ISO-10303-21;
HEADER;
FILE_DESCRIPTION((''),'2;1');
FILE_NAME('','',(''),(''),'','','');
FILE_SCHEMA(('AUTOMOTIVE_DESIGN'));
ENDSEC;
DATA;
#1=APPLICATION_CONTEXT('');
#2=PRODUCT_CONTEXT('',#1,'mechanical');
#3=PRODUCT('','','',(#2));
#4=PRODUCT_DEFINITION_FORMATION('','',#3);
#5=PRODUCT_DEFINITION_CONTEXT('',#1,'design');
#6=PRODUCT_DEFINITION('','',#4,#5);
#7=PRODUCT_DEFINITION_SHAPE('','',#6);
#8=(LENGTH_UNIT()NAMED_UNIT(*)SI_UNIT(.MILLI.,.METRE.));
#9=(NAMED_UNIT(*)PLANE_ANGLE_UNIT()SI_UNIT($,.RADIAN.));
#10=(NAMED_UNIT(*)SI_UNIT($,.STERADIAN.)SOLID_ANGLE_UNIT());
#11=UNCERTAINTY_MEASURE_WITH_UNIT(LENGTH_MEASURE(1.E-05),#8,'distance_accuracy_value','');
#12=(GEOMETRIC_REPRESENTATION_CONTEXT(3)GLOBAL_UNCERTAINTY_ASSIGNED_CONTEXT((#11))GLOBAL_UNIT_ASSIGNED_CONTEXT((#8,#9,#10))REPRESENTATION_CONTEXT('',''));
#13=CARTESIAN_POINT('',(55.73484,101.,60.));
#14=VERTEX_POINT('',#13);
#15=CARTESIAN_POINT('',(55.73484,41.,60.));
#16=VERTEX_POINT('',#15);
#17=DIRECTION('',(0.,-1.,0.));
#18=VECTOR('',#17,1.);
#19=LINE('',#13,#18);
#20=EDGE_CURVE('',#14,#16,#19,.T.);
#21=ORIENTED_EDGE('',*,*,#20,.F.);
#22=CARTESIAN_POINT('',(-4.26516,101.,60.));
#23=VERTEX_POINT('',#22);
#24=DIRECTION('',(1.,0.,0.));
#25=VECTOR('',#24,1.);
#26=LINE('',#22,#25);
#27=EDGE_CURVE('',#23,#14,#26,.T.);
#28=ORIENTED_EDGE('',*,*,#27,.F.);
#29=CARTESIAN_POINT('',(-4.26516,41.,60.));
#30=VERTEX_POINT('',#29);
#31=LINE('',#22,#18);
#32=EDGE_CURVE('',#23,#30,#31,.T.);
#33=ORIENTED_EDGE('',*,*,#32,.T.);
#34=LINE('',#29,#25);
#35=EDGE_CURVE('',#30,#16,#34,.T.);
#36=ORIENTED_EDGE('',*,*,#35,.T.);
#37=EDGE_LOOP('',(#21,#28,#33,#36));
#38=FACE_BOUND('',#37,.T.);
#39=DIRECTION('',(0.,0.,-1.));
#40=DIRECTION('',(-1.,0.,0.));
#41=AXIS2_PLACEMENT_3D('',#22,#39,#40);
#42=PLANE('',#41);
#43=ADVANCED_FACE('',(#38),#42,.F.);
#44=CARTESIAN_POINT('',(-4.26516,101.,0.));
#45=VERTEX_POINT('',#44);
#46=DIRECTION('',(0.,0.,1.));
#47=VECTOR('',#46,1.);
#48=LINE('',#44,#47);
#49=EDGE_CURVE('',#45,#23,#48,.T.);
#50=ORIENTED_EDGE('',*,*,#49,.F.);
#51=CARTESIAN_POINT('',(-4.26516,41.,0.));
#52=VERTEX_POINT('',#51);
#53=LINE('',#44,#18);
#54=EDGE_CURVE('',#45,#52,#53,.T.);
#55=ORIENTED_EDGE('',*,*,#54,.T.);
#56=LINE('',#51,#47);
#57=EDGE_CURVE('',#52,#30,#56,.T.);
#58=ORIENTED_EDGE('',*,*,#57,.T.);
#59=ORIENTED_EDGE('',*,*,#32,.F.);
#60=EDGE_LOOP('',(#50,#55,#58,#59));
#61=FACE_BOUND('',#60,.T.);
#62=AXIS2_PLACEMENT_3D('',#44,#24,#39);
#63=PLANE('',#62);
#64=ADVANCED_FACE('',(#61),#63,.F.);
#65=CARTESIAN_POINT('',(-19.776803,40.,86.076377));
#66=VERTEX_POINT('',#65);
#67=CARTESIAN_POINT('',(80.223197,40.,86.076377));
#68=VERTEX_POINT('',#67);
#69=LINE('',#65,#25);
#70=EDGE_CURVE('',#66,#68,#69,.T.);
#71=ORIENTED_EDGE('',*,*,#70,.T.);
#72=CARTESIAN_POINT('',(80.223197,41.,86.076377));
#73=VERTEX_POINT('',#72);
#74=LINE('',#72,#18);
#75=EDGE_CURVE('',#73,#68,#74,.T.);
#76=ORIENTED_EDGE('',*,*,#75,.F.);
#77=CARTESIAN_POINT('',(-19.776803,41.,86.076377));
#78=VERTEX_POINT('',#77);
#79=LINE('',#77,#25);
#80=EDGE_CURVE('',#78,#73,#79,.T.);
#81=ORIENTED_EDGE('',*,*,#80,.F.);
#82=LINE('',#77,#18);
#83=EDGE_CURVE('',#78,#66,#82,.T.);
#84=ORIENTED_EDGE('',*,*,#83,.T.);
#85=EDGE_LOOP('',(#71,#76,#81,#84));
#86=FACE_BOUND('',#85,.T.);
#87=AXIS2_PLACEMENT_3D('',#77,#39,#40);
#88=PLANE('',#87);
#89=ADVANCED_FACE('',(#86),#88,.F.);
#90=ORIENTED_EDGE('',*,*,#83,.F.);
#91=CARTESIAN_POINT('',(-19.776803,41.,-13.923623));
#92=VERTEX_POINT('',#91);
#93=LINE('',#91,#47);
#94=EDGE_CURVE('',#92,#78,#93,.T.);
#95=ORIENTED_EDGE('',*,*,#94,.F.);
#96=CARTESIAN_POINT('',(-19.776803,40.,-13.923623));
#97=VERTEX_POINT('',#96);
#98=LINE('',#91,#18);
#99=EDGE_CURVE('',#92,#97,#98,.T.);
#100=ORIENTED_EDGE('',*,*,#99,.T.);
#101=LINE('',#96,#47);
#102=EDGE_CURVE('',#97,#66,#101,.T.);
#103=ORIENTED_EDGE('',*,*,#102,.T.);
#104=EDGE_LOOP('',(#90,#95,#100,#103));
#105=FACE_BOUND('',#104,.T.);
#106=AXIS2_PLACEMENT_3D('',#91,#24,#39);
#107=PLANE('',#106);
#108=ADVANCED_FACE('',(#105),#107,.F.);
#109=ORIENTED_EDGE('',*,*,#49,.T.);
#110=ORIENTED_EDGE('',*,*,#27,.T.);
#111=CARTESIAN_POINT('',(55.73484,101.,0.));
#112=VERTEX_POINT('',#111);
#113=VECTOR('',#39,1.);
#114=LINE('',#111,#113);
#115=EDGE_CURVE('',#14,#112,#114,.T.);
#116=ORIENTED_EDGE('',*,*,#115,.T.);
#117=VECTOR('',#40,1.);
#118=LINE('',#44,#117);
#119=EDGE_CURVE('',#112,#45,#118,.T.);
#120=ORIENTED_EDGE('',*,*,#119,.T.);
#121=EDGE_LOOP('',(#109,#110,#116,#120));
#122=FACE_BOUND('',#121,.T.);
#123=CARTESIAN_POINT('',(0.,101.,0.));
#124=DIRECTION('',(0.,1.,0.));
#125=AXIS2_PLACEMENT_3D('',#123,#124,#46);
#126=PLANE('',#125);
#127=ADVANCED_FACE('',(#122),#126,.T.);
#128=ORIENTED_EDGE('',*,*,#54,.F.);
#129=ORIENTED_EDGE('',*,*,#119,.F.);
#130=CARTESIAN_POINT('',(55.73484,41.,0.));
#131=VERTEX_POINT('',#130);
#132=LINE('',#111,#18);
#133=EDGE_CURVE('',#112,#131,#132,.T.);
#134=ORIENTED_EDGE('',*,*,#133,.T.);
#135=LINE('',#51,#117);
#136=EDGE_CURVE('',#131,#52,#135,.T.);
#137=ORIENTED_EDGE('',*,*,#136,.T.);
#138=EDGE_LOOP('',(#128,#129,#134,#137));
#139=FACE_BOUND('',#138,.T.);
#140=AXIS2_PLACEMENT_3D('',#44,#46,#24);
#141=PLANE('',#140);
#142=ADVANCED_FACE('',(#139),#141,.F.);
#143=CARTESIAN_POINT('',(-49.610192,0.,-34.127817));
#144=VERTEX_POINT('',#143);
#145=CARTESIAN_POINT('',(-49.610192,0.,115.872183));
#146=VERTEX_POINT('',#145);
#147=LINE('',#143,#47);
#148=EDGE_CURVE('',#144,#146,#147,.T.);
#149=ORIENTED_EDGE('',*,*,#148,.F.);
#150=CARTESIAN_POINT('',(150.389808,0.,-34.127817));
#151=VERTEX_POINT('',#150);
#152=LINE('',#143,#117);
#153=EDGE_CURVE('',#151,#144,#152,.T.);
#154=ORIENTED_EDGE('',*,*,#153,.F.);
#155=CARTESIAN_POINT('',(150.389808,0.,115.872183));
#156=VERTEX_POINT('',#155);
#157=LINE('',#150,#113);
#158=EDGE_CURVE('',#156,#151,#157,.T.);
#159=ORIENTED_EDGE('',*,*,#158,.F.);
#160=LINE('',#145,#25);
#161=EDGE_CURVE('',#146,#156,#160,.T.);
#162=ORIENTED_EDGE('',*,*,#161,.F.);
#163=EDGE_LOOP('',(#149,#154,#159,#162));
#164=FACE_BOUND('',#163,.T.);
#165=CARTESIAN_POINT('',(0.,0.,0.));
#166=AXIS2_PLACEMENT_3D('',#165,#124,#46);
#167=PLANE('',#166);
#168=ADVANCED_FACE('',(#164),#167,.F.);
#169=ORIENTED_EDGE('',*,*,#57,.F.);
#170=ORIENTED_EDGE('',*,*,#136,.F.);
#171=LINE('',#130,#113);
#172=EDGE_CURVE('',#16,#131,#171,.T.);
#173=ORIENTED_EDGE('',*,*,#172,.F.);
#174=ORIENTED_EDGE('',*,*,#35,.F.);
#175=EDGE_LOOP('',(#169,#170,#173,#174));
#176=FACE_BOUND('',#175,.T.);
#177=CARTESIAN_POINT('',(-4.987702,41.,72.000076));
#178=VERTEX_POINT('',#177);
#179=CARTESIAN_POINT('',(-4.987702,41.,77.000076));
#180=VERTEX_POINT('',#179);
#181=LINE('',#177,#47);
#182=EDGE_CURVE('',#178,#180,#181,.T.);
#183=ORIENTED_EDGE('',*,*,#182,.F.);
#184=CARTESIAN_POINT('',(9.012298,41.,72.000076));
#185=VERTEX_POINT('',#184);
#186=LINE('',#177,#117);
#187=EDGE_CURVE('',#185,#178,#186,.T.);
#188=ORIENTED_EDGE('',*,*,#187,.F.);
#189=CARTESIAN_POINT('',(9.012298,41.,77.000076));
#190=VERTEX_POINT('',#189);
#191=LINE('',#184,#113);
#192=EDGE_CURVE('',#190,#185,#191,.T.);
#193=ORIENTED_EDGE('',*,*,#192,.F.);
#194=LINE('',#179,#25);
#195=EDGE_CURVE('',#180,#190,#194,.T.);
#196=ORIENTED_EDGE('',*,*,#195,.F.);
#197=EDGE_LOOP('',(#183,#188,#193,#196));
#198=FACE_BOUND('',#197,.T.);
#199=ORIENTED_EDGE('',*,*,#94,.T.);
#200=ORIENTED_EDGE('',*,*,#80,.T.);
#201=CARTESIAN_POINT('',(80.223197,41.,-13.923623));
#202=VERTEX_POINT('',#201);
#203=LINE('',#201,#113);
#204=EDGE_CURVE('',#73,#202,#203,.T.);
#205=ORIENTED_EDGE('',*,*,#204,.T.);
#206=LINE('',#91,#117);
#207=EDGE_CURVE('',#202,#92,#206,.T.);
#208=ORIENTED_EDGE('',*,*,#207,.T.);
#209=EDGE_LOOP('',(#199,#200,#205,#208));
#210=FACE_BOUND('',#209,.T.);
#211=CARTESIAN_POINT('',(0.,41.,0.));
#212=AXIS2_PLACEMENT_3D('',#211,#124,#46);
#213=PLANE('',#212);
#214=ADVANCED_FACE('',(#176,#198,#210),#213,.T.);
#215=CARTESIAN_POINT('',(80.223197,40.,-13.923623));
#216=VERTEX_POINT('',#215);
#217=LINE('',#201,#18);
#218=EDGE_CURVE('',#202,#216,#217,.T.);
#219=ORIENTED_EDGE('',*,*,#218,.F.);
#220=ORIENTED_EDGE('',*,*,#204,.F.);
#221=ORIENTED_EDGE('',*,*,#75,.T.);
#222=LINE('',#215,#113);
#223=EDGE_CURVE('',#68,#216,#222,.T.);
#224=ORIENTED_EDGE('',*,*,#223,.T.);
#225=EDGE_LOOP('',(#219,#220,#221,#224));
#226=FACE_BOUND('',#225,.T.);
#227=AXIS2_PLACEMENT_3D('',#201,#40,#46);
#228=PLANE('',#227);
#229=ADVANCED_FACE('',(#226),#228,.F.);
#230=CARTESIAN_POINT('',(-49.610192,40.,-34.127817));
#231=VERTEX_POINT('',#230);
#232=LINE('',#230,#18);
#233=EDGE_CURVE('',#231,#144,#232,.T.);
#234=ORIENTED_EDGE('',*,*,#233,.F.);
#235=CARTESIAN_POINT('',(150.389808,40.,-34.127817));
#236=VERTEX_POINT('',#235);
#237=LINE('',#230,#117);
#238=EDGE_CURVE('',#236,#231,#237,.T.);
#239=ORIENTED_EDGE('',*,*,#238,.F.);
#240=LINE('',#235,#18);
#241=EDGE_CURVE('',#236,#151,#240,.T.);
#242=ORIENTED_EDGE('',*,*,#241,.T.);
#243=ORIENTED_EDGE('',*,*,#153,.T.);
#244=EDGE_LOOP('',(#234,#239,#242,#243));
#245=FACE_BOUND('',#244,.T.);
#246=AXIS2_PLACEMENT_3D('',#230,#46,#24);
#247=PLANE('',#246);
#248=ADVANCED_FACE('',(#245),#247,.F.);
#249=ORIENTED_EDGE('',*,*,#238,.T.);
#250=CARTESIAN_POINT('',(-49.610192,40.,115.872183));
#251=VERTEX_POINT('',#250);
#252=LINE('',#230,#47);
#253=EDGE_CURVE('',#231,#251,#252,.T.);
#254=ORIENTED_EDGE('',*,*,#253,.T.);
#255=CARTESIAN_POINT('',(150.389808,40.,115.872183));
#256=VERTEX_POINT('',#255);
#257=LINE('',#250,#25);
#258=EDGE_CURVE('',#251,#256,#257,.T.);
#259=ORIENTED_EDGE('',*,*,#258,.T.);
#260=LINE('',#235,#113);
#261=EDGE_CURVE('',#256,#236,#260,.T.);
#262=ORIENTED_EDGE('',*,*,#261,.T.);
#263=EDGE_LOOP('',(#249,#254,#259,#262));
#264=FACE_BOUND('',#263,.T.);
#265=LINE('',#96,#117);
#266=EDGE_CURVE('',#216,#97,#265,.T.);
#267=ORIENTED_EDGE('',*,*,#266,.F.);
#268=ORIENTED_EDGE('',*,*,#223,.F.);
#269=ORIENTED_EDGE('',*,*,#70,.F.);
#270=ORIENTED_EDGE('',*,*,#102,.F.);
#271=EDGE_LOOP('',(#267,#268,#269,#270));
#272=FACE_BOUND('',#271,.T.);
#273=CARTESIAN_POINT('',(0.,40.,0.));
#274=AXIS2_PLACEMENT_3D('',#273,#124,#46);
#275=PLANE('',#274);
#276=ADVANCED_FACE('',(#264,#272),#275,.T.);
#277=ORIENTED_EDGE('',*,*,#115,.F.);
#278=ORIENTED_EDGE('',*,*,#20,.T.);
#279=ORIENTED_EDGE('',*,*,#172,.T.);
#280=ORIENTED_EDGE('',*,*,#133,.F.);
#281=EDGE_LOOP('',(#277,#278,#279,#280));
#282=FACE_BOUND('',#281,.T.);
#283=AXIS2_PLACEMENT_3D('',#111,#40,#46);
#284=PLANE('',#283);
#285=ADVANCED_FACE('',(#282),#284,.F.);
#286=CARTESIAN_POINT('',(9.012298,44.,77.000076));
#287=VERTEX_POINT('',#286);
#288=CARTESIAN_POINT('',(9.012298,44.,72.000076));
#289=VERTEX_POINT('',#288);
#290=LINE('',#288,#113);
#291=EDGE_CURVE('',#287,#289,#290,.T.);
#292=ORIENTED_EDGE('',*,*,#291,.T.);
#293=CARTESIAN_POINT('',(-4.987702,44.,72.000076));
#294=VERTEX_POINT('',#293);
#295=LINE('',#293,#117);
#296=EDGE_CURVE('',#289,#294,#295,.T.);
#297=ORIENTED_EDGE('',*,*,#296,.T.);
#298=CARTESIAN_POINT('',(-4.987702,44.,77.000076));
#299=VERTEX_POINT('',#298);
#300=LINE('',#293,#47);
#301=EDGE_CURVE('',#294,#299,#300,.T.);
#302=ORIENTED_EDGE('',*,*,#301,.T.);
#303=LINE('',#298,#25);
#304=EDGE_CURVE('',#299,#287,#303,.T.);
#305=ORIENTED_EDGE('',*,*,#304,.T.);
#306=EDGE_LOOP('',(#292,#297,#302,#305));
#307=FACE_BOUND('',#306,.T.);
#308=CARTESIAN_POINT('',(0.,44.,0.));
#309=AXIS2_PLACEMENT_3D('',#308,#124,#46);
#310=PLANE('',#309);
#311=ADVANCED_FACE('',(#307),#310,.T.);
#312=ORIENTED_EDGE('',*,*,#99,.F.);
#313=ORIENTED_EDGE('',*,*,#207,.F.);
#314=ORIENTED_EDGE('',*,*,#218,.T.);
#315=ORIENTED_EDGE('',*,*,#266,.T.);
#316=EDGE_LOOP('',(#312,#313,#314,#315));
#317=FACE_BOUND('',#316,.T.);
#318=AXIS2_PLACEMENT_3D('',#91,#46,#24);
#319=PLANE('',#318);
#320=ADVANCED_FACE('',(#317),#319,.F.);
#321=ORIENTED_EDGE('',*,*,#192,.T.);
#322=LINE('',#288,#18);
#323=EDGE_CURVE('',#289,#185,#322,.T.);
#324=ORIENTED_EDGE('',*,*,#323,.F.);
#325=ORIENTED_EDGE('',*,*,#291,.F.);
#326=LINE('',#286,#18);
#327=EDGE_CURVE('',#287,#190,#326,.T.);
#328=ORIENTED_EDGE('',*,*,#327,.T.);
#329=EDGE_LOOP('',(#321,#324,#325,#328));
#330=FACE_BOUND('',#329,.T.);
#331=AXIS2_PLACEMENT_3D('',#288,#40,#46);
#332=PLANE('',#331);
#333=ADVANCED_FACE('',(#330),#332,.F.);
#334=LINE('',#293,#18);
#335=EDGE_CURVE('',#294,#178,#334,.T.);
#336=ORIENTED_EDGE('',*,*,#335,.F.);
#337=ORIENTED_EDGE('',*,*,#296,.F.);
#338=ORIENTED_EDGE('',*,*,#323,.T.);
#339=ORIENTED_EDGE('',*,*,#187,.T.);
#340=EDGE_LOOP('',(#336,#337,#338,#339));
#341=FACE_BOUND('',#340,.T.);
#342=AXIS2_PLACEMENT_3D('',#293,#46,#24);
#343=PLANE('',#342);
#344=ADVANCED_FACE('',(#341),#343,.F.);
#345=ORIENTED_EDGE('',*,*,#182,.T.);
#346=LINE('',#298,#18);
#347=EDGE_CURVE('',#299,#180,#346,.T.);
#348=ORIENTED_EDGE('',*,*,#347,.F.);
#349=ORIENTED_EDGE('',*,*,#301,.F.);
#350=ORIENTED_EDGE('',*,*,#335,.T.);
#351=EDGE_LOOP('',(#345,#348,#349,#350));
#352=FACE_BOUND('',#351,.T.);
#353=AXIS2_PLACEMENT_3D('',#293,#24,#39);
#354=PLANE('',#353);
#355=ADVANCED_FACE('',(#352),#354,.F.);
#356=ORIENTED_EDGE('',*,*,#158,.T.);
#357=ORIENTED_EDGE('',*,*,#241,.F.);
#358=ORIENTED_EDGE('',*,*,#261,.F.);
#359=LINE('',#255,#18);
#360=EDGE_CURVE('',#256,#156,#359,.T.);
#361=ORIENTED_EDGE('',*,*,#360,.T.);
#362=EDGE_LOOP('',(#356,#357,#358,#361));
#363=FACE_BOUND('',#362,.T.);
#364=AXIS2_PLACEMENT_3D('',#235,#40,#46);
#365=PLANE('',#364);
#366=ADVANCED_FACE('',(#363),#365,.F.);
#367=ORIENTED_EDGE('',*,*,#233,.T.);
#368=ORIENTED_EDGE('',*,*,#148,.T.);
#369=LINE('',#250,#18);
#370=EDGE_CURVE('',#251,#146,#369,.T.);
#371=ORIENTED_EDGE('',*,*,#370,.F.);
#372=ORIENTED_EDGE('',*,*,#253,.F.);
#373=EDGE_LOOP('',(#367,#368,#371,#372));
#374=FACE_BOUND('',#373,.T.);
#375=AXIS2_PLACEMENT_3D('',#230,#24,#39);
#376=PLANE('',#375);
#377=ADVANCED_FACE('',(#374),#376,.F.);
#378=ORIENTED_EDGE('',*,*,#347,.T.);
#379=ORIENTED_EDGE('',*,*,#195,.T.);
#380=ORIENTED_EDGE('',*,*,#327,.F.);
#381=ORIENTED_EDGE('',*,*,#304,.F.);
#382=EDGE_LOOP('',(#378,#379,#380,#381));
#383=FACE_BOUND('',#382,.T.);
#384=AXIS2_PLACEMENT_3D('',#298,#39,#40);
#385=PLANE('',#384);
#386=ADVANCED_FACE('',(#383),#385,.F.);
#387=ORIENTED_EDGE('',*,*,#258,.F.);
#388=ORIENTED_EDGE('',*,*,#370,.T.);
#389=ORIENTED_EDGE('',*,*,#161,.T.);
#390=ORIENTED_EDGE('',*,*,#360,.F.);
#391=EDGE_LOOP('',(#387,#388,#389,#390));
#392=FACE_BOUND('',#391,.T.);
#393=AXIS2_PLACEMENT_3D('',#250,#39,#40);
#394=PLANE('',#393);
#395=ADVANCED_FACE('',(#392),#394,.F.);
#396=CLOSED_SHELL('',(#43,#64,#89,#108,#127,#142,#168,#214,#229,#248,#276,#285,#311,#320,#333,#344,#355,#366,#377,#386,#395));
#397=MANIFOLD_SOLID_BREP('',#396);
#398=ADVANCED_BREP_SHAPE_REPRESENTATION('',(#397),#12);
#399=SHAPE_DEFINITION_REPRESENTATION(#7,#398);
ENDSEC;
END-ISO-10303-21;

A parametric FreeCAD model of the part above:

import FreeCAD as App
import Part
import Sketcher


def add_polygon(sketch, points):
    """Adds a closed chain of lines whose ends are joined by coincident constraints."""
    first, n = sketch.GeometryCount, len(points)
    for a, b in zip(points, points[1:] + points[:1]):
        sketch.addGeometry(Part.LineSegment(App.Vector(*a, 0), App.Vector(*b, 0)), False)
    for i in range(n):
        sketch.addConstraint(Sketcher.Constraint("Coincident", first + i, 2, first + (i + 1) % n, 1))

doc = App.newDocument("Part")
body = doc.addObject("PartDesign::Body", "Body")

# Sketch on XZ plane
sketch1 = body.newObject("Sketcher::SketchObject", "Sketch")
sketch1.AttachmentSupport = (doc.getObject("XZ_Plane"), [""])
sketch1.MapMode = "FlatFace"
add_polygon(sketch1, [(-50, -34), (-50, 116), (150, 116), (150, -34)])  # lines 0-3
sketch1.addConstraint(Sketcher.Constraint("Vertical", 0))
sketch1.addConstraint(Sketcher.Constraint("Horizontal", 1))
sketch1.addConstraint(Sketcher.Constraint("Vertical", 2))
sketch1.addConstraint(Sketcher.Constraint("Horizontal", 3))
sketch1.addConstraint(Sketcher.Constraint("DistanceX", 1, 1, 1, 2, 200.0))
sketch1.addConstraint(Sketcher.Constraint("DistanceY", 0, 1, 0, 2, 150.0))
sketch1.addConstraint(Sketcher.Constraint("DistanceX", 0, 2, -1, 1, 49.610192))
sketch1.addConstraint(Sketcher.Constraint("DistanceY", -1, 1, 0, 2, 115.872183))
pad1 = body.newObject("PartDesign::Pad", "Pad")
pad1.Profile = sketch1
pad1.Length = 40
pad1.Reversed = True

# Sketch on XZ plane
sketch2 = body.newObject("Sketcher::SketchObject", "Sketch001")
sketch2.AttachmentSupport = (doc.getObject("XZ_Plane"), [""])
sketch2.MapMode = "FlatFace"
sketch2.AttachmentOffset = App.Placement(App.Vector(0, 0, -40), App.Rotation())
add_polygon(sketch2, [(-20, -14), (-20, 86), (80, 86), (80, -14)])  # lines 0-3
sketch2.addConstraint(Sketcher.Constraint("Vertical", 0))
sketch2.addConstraint(Sketcher.Constraint("Horizontal", 1))
sketch2.addConstraint(Sketcher.Constraint("Vertical", 2))
sketch2.addConstraint(Sketcher.Constraint("Horizontal", 3))
sketch2.addConstraint(Sketcher.Constraint("Equal", 3, 0))
sketch2.addConstraint(Sketcher.Constraint("DistanceX", 1, 1, 1, 2, 100.0))
sketch2.addConstraint(Sketcher.Constraint("DistanceX", 0, 2, -1, 1, 19.776803))
sketch2.addConstraint(Sketcher.Constraint("DistanceY", -1, 1, 0, 2, 86.076377))
pad2 = body.newObject("PartDesign::Pad", "Pad001")
pad2.Profile = sketch2
pad2.Length = 1
pad2.Reversed = True

# Sketch on XZ plane
sketch3 = body.newObject("Sketcher::SketchObject", "Sketch002")
sketch3.AttachmentSupport = (doc.getObject("XZ_Plane"), [""])
sketch3.MapMode = "FlatFace"
sketch3.AttachmentOffset = App.Placement(App.Vector(0, 0, -41), App.Rotation())
add_polygon(sketch3, [(-4, 0), (-4, 60), (56, 60), (56, 0)])  # lines 0-3
sketch3.addConstraint(Sketcher.Constraint("Vertical", 0))
sketch3.addConstraint(Sketcher.Constraint("Horizontal", 1))
sketch3.addConstraint(Sketcher.Constraint("Vertical", 2))
sketch3.addConstraint(Sketcher.Constraint("Horizontal", 3))
sketch3.addConstraint(Sketcher.Constraint("PointOnObject", 2, 2, -1))
sketch3.addConstraint(Sketcher.Constraint("Equal", 3, 0))
sketch3.addConstraint(Sketcher.Constraint("DistanceX", 1, 1, 1, 2, 60.0))
sketch3.addConstraint(Sketcher.Constraint("DistanceX", 0, 2, -1, 1, 4.26516))
pad3 = body.newObject("PartDesign::Pad", "Pad002")
pad3.Profile = sketch3
pad3.Length = 60
pad3.Reversed = True

# Sketch on XZ plane
sketch4 = body.newObject("Sketcher::SketchObject", "Sketch003")
sketch4.AttachmentSupport = (doc.getObject("XZ_Plane"), [""])
sketch4.MapMode = "FlatFace"
sketch4.AttachmentOffset = App.Placement(App.Vector(0, 0, -41), App.Rotation())
add_polygon(sketch4, [(-5, 72), (-5, 77), (9, 77), (9, 72)])  # lines 0-3
sketch4.addConstraint(Sketcher.Constraint("Vertical", 0))
sketch4.addConstraint(Sketcher.Constraint("Horizontal", 1))
sketch4.addConstraint(Sketcher.Constraint("Vertical", 2))
sketch4.addConstraint(Sketcher.Constraint("Horizontal", 3))
sketch4.addConstraint(Sketcher.Constraint("DistanceX", 1, 1, 1, 2, 14.0))
sketch4.addConstraint(Sketcher.Constraint("DistanceY", 0, 1, 0, 2, 5.0))
sketch4.addConstraint(Sketcher.Constraint("DistanceX", 0, 2, -1, 1, 4.987702))
sketch4.addConstraint(Sketcher.Constraint("DistanceY", -1, 1, 0, 2, 77.000076))
pad4 = body.newObject("PartDesign::Pad", "Pad003")
pad4.Profile = sketch4
pad4.Length = 3
pad4.Reversed = True

doc.recompute()
